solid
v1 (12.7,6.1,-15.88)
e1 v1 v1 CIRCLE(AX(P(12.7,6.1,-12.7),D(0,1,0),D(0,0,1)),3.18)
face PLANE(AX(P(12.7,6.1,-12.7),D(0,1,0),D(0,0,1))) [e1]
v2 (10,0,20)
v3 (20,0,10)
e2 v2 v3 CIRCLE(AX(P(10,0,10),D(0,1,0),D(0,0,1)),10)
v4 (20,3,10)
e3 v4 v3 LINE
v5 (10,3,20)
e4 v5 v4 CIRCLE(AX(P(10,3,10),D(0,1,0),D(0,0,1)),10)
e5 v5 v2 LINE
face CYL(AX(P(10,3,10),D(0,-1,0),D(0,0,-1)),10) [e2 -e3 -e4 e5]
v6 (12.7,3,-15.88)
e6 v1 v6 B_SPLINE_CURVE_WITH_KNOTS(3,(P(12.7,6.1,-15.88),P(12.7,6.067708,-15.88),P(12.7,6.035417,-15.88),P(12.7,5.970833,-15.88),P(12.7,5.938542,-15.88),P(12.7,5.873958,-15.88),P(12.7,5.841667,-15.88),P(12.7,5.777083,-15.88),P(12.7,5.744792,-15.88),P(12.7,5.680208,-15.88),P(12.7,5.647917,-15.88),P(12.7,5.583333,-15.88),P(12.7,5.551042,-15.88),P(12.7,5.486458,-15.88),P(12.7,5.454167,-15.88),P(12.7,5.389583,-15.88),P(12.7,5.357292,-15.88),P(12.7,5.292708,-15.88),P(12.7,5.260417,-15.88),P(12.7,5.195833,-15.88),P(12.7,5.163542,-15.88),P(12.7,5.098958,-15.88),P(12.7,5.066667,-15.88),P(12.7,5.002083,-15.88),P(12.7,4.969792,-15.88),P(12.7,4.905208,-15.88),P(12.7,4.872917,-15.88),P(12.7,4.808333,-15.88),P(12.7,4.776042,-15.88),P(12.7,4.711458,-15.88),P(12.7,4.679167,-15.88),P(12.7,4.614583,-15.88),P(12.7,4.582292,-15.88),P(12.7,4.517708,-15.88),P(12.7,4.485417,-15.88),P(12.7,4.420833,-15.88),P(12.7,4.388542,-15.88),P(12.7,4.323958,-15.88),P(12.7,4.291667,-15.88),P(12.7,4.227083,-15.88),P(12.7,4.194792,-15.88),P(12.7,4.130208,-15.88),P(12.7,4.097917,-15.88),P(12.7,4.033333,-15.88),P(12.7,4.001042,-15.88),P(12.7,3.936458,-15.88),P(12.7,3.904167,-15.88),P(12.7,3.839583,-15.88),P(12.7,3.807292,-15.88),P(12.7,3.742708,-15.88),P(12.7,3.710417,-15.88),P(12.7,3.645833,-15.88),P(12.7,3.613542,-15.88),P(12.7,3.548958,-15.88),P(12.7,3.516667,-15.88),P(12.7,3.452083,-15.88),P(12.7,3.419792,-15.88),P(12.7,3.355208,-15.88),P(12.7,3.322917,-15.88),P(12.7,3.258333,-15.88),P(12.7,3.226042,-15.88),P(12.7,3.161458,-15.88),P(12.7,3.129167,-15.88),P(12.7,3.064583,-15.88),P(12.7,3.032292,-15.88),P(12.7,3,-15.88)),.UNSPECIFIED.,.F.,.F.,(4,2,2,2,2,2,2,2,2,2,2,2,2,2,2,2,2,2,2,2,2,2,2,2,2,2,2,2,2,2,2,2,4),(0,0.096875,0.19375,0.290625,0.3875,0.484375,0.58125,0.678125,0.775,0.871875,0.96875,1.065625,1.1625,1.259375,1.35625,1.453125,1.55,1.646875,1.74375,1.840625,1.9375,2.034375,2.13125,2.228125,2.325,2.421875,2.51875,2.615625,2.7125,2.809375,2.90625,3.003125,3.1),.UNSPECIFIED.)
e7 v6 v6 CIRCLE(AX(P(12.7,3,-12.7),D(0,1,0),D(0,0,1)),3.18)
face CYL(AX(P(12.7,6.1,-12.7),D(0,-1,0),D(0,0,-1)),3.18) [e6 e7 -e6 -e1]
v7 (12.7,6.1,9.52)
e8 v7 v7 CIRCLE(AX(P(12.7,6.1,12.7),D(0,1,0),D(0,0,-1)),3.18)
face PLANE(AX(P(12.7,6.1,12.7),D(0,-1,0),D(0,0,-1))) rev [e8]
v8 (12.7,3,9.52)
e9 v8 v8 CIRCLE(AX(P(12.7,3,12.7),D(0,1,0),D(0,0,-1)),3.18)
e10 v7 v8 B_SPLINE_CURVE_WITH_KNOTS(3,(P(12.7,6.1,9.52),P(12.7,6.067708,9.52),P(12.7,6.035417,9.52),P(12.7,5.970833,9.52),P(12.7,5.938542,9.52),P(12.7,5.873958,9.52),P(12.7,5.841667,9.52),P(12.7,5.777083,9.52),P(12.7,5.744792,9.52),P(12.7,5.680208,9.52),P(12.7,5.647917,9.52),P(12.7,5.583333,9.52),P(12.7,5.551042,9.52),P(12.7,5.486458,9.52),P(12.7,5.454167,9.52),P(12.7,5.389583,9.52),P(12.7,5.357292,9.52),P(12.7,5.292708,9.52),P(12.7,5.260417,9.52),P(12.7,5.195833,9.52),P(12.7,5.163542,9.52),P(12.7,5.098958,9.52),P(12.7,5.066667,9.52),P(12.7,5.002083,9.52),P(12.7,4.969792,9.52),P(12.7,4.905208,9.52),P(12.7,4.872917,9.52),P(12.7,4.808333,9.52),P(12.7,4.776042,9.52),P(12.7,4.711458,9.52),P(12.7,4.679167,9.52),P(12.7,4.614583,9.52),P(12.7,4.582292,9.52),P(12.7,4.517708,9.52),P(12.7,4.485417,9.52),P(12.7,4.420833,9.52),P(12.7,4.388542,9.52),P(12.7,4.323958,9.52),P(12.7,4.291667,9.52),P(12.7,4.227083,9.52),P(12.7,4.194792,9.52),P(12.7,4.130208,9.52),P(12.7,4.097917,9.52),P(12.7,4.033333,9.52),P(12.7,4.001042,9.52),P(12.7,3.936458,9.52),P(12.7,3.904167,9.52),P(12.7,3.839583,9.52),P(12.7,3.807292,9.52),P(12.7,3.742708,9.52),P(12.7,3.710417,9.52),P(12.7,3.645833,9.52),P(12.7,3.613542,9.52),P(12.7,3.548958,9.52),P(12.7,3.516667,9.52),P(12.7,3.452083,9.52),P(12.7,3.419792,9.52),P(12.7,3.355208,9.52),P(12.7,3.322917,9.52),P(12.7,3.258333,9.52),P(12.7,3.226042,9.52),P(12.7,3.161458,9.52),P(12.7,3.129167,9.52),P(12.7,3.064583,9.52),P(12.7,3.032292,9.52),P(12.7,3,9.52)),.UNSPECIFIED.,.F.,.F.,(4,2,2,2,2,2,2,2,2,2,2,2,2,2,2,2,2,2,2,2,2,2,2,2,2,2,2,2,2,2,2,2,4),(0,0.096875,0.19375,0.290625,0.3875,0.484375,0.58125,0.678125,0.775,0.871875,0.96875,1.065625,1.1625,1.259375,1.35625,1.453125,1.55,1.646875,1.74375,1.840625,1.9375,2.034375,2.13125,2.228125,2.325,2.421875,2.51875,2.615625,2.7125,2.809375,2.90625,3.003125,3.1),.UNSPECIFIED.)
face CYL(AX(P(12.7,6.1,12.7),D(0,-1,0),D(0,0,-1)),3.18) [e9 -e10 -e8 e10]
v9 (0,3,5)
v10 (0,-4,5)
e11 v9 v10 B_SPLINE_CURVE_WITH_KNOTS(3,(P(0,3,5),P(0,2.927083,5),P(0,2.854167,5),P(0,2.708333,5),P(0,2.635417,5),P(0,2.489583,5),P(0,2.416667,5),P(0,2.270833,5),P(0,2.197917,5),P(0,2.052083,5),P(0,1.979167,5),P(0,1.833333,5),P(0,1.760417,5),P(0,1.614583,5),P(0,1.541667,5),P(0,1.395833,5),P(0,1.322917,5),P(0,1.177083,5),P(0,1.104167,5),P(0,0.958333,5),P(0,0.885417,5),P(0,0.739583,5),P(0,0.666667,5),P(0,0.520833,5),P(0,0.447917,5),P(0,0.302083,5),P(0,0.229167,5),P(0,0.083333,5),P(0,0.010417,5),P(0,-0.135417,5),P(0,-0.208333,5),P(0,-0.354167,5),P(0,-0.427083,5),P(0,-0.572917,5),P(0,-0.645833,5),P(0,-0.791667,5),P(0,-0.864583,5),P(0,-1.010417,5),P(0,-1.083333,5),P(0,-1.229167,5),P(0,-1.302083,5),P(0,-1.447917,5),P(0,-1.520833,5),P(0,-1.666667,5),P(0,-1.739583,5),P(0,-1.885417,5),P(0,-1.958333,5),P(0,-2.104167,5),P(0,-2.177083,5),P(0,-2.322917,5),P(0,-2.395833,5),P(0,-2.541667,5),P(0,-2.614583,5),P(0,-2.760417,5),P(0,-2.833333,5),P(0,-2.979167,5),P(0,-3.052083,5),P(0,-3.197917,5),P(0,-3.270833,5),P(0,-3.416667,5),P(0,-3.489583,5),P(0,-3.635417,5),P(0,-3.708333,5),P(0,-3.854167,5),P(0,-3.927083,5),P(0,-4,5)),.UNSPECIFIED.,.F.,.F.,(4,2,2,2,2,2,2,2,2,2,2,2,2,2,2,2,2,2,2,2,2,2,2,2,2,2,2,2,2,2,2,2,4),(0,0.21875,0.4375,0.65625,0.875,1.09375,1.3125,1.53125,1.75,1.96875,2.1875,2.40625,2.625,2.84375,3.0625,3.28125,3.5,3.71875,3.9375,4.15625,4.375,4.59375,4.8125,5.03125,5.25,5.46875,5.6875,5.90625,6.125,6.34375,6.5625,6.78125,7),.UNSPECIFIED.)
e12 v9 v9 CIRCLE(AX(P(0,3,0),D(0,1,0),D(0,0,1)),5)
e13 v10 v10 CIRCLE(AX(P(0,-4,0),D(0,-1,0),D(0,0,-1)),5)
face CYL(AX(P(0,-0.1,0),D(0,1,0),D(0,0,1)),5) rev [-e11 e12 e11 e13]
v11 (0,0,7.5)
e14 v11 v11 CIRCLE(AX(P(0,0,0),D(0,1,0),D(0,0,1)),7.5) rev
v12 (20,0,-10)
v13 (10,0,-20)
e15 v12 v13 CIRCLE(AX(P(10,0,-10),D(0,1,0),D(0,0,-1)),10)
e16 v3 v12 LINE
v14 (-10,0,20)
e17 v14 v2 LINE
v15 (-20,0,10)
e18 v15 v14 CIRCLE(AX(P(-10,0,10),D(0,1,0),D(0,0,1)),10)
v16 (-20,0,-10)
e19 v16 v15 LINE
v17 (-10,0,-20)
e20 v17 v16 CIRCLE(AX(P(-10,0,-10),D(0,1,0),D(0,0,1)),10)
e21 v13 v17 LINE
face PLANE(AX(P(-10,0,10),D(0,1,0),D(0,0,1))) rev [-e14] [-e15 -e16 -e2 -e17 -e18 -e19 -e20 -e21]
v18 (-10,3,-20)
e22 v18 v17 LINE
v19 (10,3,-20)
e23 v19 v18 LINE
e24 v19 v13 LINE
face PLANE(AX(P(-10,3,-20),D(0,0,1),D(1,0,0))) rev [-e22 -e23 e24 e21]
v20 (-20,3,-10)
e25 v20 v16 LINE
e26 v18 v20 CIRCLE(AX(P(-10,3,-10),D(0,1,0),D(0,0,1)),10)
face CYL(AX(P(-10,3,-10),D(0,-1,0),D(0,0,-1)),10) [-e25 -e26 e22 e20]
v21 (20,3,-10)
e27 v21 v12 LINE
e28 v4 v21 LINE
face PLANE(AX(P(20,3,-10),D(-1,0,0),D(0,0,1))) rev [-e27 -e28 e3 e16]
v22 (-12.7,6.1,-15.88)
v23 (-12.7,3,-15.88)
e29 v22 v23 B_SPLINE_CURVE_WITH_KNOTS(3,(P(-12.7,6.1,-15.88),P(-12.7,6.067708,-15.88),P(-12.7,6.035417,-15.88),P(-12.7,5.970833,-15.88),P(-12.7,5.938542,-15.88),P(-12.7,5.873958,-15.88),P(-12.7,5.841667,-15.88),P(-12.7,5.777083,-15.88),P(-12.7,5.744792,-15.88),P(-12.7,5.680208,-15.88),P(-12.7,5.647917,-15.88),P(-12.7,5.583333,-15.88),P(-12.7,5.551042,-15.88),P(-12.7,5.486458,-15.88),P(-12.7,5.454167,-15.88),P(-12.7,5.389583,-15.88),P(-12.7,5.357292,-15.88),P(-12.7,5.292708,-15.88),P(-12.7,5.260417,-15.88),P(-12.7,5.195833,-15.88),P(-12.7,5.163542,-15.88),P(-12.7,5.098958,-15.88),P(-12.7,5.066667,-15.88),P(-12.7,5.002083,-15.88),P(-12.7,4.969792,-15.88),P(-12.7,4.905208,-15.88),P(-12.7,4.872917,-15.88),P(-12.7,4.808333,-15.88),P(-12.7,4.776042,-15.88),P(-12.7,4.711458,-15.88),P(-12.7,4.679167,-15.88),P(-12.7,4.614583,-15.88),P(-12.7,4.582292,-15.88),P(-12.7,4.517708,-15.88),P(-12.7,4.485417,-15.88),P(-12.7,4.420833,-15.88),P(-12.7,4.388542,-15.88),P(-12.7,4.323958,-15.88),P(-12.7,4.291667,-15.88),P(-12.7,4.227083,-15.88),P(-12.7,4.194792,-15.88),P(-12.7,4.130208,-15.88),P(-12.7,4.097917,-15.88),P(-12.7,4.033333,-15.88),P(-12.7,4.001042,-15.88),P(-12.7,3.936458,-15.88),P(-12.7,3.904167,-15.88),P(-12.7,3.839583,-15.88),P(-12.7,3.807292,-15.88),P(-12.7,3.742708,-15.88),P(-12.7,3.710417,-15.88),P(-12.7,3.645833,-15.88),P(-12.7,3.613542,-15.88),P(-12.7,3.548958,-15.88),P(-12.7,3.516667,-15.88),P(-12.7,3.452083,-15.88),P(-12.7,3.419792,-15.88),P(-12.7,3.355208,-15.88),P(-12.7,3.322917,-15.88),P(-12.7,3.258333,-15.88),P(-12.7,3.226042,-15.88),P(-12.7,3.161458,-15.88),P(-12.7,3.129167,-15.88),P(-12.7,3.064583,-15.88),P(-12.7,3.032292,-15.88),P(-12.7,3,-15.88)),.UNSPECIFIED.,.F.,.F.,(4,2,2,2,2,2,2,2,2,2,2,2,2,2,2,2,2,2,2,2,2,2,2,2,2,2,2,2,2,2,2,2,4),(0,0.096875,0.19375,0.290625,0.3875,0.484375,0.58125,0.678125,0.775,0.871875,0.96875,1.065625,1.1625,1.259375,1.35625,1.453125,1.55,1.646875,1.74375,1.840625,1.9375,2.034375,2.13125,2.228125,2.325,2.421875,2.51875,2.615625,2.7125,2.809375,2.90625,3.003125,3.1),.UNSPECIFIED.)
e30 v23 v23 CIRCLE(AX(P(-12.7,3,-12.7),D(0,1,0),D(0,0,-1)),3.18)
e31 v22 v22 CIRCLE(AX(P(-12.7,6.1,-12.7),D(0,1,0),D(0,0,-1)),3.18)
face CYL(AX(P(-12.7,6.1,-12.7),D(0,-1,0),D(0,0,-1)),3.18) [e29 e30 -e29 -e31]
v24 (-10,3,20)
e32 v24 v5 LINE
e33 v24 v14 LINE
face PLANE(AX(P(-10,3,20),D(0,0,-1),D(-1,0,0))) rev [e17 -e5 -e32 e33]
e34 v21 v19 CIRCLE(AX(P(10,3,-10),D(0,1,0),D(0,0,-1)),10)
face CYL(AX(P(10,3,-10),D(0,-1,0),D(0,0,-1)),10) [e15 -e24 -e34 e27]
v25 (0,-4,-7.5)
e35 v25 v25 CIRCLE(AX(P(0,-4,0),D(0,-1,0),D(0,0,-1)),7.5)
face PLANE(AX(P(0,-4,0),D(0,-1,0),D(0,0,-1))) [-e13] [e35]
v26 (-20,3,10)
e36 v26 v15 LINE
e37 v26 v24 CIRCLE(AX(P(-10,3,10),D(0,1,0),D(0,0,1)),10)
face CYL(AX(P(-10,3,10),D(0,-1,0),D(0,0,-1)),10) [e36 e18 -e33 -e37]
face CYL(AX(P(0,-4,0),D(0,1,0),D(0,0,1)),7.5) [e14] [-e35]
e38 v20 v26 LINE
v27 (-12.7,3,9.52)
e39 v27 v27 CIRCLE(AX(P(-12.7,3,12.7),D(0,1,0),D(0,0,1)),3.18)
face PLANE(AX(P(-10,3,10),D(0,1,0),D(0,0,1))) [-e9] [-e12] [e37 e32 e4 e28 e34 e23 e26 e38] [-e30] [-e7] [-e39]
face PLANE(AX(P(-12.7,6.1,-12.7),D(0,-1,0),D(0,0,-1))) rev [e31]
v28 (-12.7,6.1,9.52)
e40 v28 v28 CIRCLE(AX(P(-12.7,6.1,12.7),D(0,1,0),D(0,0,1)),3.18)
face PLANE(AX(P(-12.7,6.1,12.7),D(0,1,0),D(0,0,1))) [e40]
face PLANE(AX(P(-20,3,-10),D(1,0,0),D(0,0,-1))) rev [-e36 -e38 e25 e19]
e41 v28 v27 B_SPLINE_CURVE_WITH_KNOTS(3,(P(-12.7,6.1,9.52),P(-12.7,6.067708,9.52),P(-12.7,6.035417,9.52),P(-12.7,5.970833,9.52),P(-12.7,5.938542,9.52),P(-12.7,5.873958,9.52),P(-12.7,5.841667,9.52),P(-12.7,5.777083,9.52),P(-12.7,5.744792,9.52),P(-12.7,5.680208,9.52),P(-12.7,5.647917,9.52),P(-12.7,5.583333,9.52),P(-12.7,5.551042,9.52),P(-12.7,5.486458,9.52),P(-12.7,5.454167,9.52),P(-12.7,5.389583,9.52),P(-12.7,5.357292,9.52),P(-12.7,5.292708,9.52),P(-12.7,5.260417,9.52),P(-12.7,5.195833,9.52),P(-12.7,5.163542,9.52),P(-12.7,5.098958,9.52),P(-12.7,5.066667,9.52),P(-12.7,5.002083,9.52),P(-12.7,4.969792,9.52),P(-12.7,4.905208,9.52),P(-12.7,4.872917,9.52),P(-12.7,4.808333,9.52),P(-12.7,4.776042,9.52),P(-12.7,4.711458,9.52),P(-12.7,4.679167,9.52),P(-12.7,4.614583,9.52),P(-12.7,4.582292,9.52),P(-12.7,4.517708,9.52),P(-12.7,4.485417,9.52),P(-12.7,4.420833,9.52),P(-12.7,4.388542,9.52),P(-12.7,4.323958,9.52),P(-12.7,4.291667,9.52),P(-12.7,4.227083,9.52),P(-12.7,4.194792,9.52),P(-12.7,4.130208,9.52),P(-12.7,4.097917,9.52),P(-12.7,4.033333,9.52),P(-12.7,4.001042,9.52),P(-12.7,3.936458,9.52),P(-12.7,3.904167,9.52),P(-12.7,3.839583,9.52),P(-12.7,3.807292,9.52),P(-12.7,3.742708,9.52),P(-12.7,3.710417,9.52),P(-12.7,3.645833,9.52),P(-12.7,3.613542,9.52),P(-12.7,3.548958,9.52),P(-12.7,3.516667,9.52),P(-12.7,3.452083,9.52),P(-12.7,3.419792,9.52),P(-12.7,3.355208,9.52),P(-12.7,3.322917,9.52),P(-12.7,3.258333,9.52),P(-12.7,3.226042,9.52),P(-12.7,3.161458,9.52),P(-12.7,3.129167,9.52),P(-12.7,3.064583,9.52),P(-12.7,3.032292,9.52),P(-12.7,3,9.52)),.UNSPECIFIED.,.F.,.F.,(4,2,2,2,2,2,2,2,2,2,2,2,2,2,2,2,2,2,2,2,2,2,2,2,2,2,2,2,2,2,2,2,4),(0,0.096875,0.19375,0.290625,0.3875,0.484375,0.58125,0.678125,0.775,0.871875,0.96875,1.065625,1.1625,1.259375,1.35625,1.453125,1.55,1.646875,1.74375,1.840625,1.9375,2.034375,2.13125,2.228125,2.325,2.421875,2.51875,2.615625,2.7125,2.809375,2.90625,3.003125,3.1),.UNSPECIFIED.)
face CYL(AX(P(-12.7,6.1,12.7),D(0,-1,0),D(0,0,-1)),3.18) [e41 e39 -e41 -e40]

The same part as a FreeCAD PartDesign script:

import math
import FreeCAD as App
import Part
import Sketcher

V = App.Vector

doc = App.newDocument("Part")
body = doc.addObject("PartDesign::Body", "Body")

sketch1 = body.newObject("Sketcher::SketchObject", "Sketch")
sketch1.AttachmentSupport = (doc.getObject("XZ_Plane"), [""])
sketch1.MapMode = "FlatFace"
sketch1.addGeometry([
    Part.LineSegment(V(10, -20, 0), V(-10, -20, 0)),
    Part.ArcOfCircle(Part.Circle(V(-10, -10, 0), V(0, 0, 1), 10), math.radians(180), math.radians(270)),
    Part.LineSegment(V(-20, -10, 0), V(-20, 10, 0)),
    Part.ArcOfCircle(Part.Circle(V(-10, 10, 0), V(0, 0, 1), 10), math.radians(90), math.radians(180)),
    Part.LineSegment(V(-10, 20, 0), V(10, 20, 0)),
    Part.ArcOfCircle(Part.Circle(V(10, 10, 0), V(0, 0, 1), 10), math.radians(0), math.radians(90)),
    Part.LineSegment(V(20, 10, 0), V(20, -10, 0)),
    Part.ArcOfCircle(Part.Circle(V(10, -10, 0), V(0, 0, 1), 10), math.radians(-90), math.radians(0)),
], False)
sketch1.addConstraint([
    Sketcher.Constraint("Tangent", 0, 2, 1, 2),
    Sketcher.Constraint("Tangent", 1, 1, 2, 1),
    Sketcher.Constraint("Tangent", 2, 2, 3, 2),
    Sketcher.Constraint("Tangent", 3, 1, 4, 1),
    Sketcher.Constraint("Tangent", 4, 2, 5, 2),
    Sketcher.Constraint("Tangent", 5, 1, 6, 1),
    Sketcher.Constraint("Tangent", 6, 2, 7, 2),
    Sketcher.Constraint("Tangent", 7, 1, 0, 1),
    Sketcher.Constraint("Horizontal", 0),
    Sketcher.Constraint("Vertical", 2),
    Sketcher.Constraint("Horizontal", 4),
    Sketcher.Constraint("Vertical", 6),
    Sketcher.Constraint("Equal", 1, 3),
    Sketcher.Constraint("Equal", 3, 5),
    Sketcher.Constraint("Equal", 5, 7),
    Sketcher.Constraint("Symmetric", 1, 3, 5, 3, -1, 1),
    Sketcher.Constraint("Equal", 4, 2),
    Sketcher.Constraint("Radius", 1, 10.0),
    Sketcher.Constraint("DistanceX", 0, 2, 0, 1, 20.0),
])
pad1 = body.newObject("PartDesign::Pad", "Pad")
pad1.Profile = sketch1
pad1.Length = 3
pad1.Reversed = True

sketch2 = body.newObject("Sketcher::SketchObject", "Sketch001")
sketch2.AttachmentSupport = (doc.getObject("XZ_Plane"), [""])
sketch2.MapMode = "FlatFace"
sketch2.AttachmentOffset = App.Placement(V(0, 0, -3), App.Rotation())
sketch2.addGeometry([
    Part.Circle(V(12.7, -12.7, 0), V(0, 0, 1), 3.2),
    Part.Circle(V(12.7, 12.7, 0), V(0, 0, 1), 3.2),
    Part.Circle(V(-12.7, 12.7, 0), V(0, 0, 1), 3.2),
    Part.Circle(V(-12.7, -12.7, 0), V(0, 0, 1), 3.2),
], False)
sketch2.addConstraint([
    Sketcher.Constraint("Equal", 0, 1),
    Sketcher.Constraint("Equal", 1, 2),
    Sketcher.Constraint("Equal", 2, 3),
    Sketcher.Constraint("Symmetric", 0, 3, 2, 3, -1, 1),
    Sketcher.Constraint("Symmetric", 1, 3, 3, 3, -1, 1),
    Sketcher.Constraint("Symmetric", 1, 3, 2, 3, -2),
    Sketcher.Constraint("Diameter", 0, 6.36),
    Sketcher.Constraint("DistanceX", -1, 1, 0, 3, 12.7),
    Sketcher.Constraint("DistanceY", 0, 3, -1, 1, 12.7),
])
pad2 = body.newObject("PartDesign::Pad", "Pad001")
pad2.Profile = sketch2
pad2.Length = 3.1
pad2.Reversed = True

sketch3 = body.newObject("Sketcher::SketchObject", "Sketch002")
sketch3.AttachmentSupport = (doc.getObject("XZ_Plane"), [""])
sketch3.MapMode = "FlatFace"
sketch3.AttachmentOffset = App.Placement(V(0, 0, -3), App.Rotation())
sketch3.addGeometry(Part.Circle(V(0, 0, 0), V(0, 0, 1), 5), False)
sketch3.addConstraint([
    Sketcher.Constraint("Coincident", 0, 3, -1, 1),
    Sketcher.Constraint("Diameter", 0, 10.0),
])
pocket1 = body.newObject("PartDesign::Pocket", "Pocket")
pocket1.Profile = sketch3
pocket1.Length = 3.1
pocket1.Reversed = True

sketch4 = body.newObject("Sketcher::SketchObject", "Sketch003")
sketch4.AttachmentSupport = (doc.getObject("XZ_Plane"), [""])
sketch4.MapMode = "FlatFace"
sketch4.addGeometry([
    Part.Circle(V(0, 0, 0), V(0, 0, 1), 8),
    Part.Circle(V(0, 0, 0), V(0, 0, 1), 5),
], False)
sketch4.addConstraint([
    Sketcher.Constraint("Coincident", 0, 3, -1, 1),
    Sketcher.Constraint("Coincident", 1, 3, -1, 1),
    Sketcher.Constraint("Diameter", 0, 15.0),
    Sketcher.Constraint("Diameter", 1, 10.0),
])
pad3 = body.newObject("PartDesign::Pad", "Pad002")
pad3.Profile = sketch4
pad3.Length = 4

doc.recompute()
